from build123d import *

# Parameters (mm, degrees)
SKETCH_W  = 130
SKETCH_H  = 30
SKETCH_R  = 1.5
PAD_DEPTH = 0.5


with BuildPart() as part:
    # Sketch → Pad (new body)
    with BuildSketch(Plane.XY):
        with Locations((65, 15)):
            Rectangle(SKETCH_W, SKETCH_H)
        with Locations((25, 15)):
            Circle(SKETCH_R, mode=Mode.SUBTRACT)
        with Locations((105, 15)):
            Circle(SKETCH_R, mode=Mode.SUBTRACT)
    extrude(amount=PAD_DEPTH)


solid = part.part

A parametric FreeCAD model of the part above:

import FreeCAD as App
import Part
import Sketcher

V = App.Vector


def add_polygon(sketch, points):
    """Adds a closed chain of lines whose ends are joined by coincident constraints."""
    first, n = sketch.GeometryCount, len(points)
    for a, b in zip(points, points[1:] + points[:1]):
        sketch.addGeometry(Part.LineSegment(App.Vector(*a, 0), App.Vector(*b, 0)), False)
    for i in range(n):
        sketch.addConstraint(Sketcher.Constraint("Coincident", first + i, 2, first + (i + 1) % n, 1))

doc = App.newDocument("Part")
body = doc.addObject("PartDesign::Body", "Body")

sketch1 = doc.addObject("Sketcher::SketchObject", "Sketch")
body.addObject(sketch1)
sketch1.AttachmentSupport = (doc.XY_Plane, [""])
sketch1.MapMode = "FlatFace"
add_polygon(sketch1, [(0, 30), (0, 0), (130, 0), (130, 30)])
sketch1.addGeometry(Part.Circle(V(25, 15, 0), V(0, 0, 1), 1.5), False)
sketch1.addGeometry(Part.Circle(V(105, 15, 0), V(0, 0, 1), 1.5), False)
sketch1.addConstraint(Sketcher.Constraint("Vertical", 0))
sketch1.addConstraint(Sketcher.Constraint("Horizontal", 1))
sketch1.addConstraint(Sketcher.Constraint("Vertical", 2))
sketch1.addConstraint(Sketcher.Constraint("Horizontal", 3))
sketch1.addConstraint(Sketcher.Constraint("Coincident", 0, 2, -1, 1))
sketch1.addConstraint(Sketcher.Constraint("Equal", 4, 5))
sketch1.addConstraint(Sketcher.Constraint("Horizontal", 4, 3, 5, 3))
sketch1.addConstraint(Sketcher.Constraint("Diameter", 4, 3.0))
sketch1.addConstraint(Sketcher.Constraint("DistanceX", 1, 1, 1, 2, 130.0))
sketch1.addConstraint(Sketcher.Constraint("DistanceY", 0, 2, 0, 1, 30.0))
sketch1.addConstraint(Sketcher.Constraint("DistanceX", -1, 1, 4, 3, 25.0))
sketch1.addConstraint(Sketcher.Constraint("DistanceY", -1, 1, 4, 3, 15.0))
sketch1.addConstraint(Sketcher.Constraint("DistanceX", -1, 1, 5, 3, 105.0))
pad1 = doc.addObject("PartDesign::Pad", "Pad")
body.addObject(pad1)
pad1.Profile = sketch1
pad1.Length = 0.5

doc.recompute()
